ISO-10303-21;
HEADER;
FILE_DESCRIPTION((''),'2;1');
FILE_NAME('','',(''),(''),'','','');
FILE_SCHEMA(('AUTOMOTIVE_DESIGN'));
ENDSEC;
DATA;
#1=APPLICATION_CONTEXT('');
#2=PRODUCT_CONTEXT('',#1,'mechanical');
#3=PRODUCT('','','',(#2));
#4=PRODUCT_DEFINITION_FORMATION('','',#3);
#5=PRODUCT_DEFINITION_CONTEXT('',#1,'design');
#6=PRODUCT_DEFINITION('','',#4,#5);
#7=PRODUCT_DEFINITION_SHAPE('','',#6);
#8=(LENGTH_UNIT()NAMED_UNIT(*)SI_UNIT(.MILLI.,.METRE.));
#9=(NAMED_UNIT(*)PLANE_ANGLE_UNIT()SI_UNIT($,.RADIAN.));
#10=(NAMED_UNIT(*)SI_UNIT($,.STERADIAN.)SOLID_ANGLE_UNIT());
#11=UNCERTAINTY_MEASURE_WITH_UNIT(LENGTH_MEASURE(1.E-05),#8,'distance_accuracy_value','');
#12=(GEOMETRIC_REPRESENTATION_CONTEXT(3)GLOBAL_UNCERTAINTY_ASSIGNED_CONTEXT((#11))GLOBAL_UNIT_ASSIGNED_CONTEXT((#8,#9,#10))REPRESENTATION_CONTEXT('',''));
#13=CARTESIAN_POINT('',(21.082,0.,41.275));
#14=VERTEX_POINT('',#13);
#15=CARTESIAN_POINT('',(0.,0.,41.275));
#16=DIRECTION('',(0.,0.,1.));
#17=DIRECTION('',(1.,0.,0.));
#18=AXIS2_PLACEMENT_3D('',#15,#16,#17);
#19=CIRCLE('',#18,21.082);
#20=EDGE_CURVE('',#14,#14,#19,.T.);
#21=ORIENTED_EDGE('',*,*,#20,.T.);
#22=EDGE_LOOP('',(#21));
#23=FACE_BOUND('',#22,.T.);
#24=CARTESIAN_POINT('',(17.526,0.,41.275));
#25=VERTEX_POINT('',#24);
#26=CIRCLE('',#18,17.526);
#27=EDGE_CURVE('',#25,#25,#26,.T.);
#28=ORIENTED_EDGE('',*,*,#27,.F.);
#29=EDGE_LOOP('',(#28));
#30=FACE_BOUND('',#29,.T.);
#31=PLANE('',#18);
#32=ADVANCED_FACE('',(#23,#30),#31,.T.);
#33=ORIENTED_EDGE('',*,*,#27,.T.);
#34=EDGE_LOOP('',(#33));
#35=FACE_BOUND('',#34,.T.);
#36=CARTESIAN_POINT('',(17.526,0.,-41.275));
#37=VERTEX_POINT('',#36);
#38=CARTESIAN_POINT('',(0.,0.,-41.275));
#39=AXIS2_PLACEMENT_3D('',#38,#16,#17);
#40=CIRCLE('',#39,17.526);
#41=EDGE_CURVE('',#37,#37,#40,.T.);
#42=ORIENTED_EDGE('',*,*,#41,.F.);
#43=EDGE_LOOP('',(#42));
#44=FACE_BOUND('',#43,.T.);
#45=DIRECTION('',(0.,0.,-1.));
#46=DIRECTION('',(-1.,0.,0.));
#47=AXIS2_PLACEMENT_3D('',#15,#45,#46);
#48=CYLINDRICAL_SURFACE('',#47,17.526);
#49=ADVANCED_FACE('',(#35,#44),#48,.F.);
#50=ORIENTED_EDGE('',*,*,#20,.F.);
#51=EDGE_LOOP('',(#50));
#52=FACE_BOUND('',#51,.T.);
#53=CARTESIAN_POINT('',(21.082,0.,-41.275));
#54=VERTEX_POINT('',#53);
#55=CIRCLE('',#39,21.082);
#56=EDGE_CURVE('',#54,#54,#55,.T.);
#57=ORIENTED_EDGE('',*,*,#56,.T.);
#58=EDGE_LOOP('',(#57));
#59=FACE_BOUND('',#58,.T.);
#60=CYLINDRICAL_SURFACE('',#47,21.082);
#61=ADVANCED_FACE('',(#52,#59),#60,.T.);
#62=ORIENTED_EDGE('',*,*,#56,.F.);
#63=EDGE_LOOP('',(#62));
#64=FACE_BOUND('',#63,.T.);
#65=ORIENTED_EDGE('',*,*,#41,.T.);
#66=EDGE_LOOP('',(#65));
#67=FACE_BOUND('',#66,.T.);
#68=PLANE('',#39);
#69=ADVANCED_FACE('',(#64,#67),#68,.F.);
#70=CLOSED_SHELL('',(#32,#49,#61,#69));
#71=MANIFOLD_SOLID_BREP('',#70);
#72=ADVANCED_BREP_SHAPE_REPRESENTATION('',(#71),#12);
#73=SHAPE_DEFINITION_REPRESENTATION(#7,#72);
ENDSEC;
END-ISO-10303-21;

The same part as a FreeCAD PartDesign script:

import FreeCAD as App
import Part
import Sketcher
Q = App.Units.Quantity

doc = App.newDocument("Part")
body = doc.addObject("PartDesign::Body", "Body")

# Sketch on XY plane
sketch1 = body.newObject("Sketcher::SketchObject", "Sketch")
sketch1.AttachmentSupport = (doc.getObject("XY_Plane"), [""])
sketch1.MapMode = "FlatFace"
sketch1.addGeometry([
    Part.Circle(App.Vector(0, 0, 0), App.Vector(0, 0, 1), 21),
    Part.Circle(App.Vector(0, 0, 0), App.Vector(0, 0, 1), 18),
], False)
sketch1.addConstraint([
    Sketcher.Constraint("Coincident", 0, 3, -1, 1),
    Sketcher.Constraint("Coincident", 1, 3, -1, 1),
    Sketcher.Constraint("Diameter", 0, Q("1.66 in")),
    Sketcher.Constraint("Diameter", 1, Q("1.38 in")),
])
pad1 = body.newObject("PartDesign::Pad", "Pad")
pad1.Profile = sketch1
pad1.Length = Q("3.25 in")
pad1.Midplane = True

doc.recompute()
